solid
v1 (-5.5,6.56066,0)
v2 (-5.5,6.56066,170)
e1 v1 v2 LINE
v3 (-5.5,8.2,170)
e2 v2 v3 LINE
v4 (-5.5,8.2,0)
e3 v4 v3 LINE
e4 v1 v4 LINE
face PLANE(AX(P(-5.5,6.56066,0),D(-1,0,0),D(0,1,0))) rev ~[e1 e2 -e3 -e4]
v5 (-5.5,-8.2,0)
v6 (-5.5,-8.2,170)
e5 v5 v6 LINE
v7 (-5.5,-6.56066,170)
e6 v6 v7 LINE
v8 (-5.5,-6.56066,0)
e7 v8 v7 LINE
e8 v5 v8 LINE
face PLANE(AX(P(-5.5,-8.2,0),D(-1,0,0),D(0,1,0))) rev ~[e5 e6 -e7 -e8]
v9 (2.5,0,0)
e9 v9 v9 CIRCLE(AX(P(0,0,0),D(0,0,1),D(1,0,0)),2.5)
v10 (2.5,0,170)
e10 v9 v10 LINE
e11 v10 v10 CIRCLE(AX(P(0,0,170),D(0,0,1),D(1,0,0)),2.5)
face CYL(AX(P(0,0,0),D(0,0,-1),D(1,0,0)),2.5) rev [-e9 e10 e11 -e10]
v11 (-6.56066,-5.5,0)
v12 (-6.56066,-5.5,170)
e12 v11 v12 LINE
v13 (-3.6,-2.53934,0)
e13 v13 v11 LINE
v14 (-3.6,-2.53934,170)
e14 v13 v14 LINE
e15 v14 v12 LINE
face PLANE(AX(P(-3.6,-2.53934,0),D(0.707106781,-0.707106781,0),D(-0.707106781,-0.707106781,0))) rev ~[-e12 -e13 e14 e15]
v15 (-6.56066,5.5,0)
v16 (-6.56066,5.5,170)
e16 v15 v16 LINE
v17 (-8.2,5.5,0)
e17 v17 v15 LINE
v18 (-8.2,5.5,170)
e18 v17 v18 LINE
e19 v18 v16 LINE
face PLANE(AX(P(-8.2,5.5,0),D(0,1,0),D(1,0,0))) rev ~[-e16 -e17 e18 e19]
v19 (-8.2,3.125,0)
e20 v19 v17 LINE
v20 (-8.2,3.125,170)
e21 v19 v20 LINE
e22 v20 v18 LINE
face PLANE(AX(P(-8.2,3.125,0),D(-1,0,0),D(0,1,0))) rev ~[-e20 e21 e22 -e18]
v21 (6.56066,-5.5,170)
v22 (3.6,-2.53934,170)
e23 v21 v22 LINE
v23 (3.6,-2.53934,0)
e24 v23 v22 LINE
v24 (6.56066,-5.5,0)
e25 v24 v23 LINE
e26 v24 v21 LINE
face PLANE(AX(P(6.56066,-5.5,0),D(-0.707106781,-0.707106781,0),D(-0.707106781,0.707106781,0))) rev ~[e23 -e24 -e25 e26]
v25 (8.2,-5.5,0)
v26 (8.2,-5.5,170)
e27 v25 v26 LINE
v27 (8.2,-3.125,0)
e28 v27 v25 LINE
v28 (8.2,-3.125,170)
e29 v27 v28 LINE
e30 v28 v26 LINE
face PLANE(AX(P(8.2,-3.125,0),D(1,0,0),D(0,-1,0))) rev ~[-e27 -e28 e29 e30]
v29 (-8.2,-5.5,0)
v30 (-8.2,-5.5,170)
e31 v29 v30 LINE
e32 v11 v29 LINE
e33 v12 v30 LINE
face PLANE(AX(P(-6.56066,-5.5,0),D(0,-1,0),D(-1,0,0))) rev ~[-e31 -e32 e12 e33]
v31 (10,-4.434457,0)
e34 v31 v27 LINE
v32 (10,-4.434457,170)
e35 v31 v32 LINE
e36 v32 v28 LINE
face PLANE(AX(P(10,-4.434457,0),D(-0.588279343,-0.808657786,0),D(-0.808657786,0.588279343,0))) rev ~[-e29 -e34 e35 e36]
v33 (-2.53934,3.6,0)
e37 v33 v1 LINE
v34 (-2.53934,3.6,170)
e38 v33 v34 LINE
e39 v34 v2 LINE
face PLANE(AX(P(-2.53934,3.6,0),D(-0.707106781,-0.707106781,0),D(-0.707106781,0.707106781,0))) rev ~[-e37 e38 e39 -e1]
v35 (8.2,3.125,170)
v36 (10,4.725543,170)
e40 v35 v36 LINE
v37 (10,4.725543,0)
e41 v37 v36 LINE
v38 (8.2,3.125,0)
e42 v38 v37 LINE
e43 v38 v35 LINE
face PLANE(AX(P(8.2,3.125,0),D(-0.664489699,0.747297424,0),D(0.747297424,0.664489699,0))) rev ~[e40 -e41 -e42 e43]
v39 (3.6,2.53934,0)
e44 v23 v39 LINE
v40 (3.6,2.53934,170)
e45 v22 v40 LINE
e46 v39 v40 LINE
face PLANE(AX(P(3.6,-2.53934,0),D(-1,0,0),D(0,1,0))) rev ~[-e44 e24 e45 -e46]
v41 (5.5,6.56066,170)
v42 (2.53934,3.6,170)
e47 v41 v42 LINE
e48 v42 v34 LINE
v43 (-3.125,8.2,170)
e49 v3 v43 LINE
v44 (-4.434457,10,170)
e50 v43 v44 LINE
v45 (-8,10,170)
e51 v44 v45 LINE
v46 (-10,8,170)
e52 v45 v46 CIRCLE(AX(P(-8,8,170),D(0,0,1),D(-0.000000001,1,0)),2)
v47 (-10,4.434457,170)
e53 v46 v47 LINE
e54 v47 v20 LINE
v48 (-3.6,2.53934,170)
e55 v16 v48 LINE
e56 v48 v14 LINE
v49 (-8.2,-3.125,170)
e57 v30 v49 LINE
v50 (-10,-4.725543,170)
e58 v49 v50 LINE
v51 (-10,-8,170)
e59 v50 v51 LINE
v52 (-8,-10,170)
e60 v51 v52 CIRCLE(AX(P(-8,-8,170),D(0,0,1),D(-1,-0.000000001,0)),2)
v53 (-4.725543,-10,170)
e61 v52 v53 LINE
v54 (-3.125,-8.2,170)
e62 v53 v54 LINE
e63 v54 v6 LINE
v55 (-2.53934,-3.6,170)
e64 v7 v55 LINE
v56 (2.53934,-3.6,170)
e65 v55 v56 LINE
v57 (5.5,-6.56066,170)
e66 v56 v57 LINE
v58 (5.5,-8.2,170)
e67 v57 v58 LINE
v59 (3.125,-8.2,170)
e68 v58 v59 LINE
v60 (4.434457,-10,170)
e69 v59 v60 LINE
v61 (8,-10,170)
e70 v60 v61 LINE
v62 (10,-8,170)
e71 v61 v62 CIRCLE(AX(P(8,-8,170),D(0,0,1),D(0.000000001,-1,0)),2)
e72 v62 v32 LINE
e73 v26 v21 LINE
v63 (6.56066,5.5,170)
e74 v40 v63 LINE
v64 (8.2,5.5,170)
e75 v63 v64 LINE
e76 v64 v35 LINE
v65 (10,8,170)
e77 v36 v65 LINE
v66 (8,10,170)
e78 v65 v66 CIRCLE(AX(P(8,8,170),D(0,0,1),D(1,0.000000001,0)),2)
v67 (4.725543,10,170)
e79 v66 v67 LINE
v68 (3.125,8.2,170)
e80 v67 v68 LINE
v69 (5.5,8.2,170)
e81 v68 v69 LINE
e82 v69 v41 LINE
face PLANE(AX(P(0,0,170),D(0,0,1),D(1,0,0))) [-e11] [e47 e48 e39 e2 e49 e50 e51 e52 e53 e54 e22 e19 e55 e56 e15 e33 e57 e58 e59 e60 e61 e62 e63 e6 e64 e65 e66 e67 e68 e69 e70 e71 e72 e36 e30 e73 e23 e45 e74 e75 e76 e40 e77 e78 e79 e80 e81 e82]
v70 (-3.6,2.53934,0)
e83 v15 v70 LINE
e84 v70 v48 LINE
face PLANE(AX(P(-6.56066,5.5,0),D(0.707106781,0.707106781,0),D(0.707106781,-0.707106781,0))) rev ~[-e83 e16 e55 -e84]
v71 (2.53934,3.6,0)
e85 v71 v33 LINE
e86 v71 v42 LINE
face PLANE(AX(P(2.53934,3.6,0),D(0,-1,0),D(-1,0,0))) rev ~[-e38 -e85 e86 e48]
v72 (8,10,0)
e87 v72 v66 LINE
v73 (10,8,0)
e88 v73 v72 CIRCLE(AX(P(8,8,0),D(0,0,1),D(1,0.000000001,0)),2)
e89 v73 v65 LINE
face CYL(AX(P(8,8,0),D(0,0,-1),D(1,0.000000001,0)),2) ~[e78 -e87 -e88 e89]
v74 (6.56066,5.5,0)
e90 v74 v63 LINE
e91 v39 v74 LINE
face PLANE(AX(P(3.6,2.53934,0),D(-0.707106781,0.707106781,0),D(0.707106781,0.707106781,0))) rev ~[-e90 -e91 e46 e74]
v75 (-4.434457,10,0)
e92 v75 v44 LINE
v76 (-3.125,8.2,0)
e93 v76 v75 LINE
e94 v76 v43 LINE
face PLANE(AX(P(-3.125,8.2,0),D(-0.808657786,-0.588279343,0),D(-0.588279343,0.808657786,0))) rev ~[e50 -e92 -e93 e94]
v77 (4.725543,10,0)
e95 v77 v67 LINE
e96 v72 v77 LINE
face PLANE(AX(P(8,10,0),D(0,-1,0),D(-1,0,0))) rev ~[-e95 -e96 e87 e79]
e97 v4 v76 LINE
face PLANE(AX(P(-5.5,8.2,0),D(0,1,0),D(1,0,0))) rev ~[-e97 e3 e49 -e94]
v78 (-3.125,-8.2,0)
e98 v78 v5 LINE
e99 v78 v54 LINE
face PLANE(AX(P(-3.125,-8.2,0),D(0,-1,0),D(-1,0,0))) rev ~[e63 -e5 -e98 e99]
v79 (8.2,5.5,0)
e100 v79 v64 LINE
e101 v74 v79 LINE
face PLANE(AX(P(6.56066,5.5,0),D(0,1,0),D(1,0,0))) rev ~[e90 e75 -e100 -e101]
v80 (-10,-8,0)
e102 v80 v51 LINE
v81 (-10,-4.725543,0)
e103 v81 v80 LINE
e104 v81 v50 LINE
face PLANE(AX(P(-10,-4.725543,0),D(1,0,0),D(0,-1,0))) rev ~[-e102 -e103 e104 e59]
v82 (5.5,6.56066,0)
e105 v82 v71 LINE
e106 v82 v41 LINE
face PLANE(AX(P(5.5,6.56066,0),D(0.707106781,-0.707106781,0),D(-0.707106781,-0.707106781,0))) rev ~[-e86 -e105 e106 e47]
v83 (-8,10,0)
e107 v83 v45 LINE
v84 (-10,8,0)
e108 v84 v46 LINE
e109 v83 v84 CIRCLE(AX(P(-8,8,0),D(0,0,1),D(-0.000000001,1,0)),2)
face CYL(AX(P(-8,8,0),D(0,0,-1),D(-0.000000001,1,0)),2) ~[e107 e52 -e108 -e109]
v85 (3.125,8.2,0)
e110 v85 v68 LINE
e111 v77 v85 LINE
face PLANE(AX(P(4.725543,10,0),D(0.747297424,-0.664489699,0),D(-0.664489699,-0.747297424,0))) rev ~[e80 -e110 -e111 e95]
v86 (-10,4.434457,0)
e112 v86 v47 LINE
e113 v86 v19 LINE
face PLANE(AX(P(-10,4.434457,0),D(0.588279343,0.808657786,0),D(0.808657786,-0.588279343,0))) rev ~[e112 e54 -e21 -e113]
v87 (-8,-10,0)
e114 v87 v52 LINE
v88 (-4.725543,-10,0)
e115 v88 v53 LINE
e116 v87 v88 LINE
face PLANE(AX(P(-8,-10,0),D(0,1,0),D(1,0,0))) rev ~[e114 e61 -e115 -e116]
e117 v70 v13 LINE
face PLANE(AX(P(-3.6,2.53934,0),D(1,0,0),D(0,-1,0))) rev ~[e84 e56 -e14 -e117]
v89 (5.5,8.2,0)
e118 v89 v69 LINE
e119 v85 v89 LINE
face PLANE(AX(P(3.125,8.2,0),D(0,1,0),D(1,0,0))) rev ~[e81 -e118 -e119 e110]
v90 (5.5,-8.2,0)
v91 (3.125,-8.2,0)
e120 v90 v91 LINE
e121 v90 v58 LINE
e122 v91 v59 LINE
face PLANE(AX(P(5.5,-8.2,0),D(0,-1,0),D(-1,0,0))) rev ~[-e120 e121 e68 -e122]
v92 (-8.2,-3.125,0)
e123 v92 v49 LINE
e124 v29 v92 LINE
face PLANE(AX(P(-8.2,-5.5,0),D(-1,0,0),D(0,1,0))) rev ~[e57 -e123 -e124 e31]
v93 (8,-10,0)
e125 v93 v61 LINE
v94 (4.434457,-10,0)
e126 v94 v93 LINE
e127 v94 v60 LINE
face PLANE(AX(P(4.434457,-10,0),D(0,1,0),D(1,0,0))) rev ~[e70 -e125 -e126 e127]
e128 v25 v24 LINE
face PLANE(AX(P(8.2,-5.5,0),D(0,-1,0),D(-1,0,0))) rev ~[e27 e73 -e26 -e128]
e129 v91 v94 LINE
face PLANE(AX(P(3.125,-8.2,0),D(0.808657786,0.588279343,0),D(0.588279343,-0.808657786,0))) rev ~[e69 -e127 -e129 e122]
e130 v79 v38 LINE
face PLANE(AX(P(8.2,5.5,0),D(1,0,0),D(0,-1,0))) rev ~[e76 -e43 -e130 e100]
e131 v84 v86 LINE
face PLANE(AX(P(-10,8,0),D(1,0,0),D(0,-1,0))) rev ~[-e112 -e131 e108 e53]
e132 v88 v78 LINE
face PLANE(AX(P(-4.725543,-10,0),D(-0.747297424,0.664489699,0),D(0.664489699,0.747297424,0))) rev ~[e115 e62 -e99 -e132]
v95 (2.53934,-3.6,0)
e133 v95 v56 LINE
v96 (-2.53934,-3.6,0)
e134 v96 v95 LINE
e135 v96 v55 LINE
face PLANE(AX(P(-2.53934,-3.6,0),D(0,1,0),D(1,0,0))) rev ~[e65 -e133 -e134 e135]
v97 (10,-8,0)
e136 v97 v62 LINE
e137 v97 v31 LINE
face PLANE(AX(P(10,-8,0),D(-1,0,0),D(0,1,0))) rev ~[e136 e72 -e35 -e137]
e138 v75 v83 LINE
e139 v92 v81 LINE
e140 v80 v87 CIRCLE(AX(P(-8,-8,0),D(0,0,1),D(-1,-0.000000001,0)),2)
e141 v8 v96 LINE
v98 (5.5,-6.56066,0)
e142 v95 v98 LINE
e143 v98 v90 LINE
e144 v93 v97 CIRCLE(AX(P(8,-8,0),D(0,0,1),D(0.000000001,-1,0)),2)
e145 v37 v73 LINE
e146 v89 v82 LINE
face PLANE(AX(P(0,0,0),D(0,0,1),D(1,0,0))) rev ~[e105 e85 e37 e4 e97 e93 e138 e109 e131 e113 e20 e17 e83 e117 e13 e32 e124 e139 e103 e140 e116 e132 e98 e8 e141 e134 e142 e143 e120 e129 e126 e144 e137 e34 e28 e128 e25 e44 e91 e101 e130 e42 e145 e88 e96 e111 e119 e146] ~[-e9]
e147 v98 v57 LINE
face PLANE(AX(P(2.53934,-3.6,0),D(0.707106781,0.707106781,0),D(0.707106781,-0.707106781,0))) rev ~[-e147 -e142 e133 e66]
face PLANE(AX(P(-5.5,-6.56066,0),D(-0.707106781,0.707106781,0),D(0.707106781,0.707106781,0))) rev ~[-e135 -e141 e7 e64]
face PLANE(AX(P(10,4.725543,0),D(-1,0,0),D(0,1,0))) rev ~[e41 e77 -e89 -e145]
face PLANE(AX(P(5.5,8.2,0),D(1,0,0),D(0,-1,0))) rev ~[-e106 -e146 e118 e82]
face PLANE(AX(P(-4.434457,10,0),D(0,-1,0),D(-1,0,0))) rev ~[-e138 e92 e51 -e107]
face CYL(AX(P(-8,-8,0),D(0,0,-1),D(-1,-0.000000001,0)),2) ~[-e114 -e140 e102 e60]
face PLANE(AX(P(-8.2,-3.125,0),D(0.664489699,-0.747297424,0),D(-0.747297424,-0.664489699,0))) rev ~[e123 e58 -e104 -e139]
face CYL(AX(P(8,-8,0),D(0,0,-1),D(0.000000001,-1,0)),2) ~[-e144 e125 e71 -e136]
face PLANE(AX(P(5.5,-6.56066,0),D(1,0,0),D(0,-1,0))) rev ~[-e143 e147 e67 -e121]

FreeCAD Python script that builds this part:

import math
import FreeCAD as App
import Part
import Sketcher

doc = App.newDocument("Part")
body = doc.addObject("PartDesign::Body", "Body")

sketch1 = doc.addObject("Sketcher::SketchObject", "Sketch")
body.addObject(sketch1)
sketch1.AttachmentSupport = (doc.XY_Plane, [""])
sketch1.MapMode = "FlatFace"
sketch1.addGeometry([
    Part.LineSegment(App.Vector(-4.725543, -10, 0), App.Vector(-3.125, -8.2, 0)),
    Part.LineSegment(App.Vector(-3.125, -8.2, 0), App.Vector(-5.5, -8.2, 0)),
    Part.LineSegment(App.Vector(-5.5, -8.2, 0), App.Vector(-5.5, -6.56066, 0)),
    Part.LineSegment(App.Vector(-5.5, -6.56066, 0), App.Vector(-2.53934, -3.6, 0)),
    Part.LineSegment(App.Vector(-2.53934, -3.6, 0), App.Vector(2.53934, -3.6, 0)),
    Part.LineSegment(App.Vector(2.53934, -3.6, 0), App.Vector(5.5, -6.56066, 0)),
    Part.LineSegment(App.Vector(5.5, -6.56066, 0), App.Vector(5.5, -8.2, 0)),
    Part.LineSegment(App.Vector(5.5, -8.2, 0), App.Vector(3.125, -8.2, 0)),
    Part.LineSegment(App.Vector(3.125, -8.2, 0), App.Vector(4.434457, -10, 0)),
    Part.LineSegment(App.Vector(4.434457, -10, 0), App.Vector(8, -10, 0)),
    Part.ArcOfCircle(Part.Circle(App.Vector(8, -8, 0), App.Vector(0, 0, 1), 2), math.radians(-90), math.radians(0)),
    Part.LineSegment(App.Vector(10, -8, 0), App.Vector(10, -4.434457, 0)),
    Part.LineSegment(App.Vector(10, -4.434457, 0), App.Vector(8.2, -3.125, 0)),
    Part.LineSegment(App.Vector(8.2, -3.125, 0), App.Vector(8.2, -5.5, 0)),
    Part.LineSegment(App.Vector(8.2, -5.5, 0), App.Vector(6.56066, -5.5, 0)),
    Part.LineSegment(App.Vector(6.56066, -5.5, 0), App.Vector(3.6, -2.53934, 0)),
    Part.LineSegment(App.Vector(3.6, -2.53934, 0), App.Vector(3.6, 2.53934, 0)),
    Part.LineSegment(App.Vector(3.6, 2.53934, 0), App.Vector(6.56066, 5.5, 0)),
    Part.LineSegment(App.Vector(6.56066, 5.5, 0), App.Vector(8.2, 5.5, 0)),
    Part.LineSegment(App.Vector(8.2, 5.5, 0), App.Vector(8.2, 3.125, 0)),
    Part.LineSegment(App.Vector(8.2, 3.125, 0), App.Vector(10, 4.725543, 0)),
    Part.LineSegment(App.Vector(10, 4.725543, 0), App.Vector(10, 8, 0)),
    Part.ArcOfCircle(Part.Circle(App.Vector(8, 8, 0), App.Vector(0, 0, 1), 2), math.radians(0), math.radians(90)),
    Part.LineSegment(App.Vector(8, 10, 0), App.Vector(4.725543, 10, 0)),
    Part.LineSegment(App.Vector(4.725543, 10, 0), App.Vector(3.125, 8.2, 0)),
    Part.LineSegment(App.Vector(3.125, 8.2, 0), App.Vector(5.5, 8.2, 0)),
    Part.LineSegment(App.Vector(5.5, 8.2, 0), App.Vector(5.5, 6.56066, 0)),
    Part.LineSegment(App.Vector(5.5, 6.56066, 0), App.Vector(2.53934, 3.6, 0)),
    Part.LineSegment(App.Vector(2.53934, 3.6, 0), App.Vector(-2.53934, 3.6, 0)),
    Part.LineSegment(App.Vector(-2.53934, 3.6, 0), App.Vector(-5.5, 6.56066, 0)),
    Part.LineSegment(App.Vector(-5.5, 6.56066, 0), App.Vector(-5.5, 8.2, 0)),
    Part.LineSegment(App.Vector(-5.5, 8.2, 0), App.Vector(-3.125, 8.2, 0)),
    Part.LineSegment(App.Vector(-3.125, 8.2, 0), App.Vector(-4.434457, 10, 0)),
    Part.LineSegment(App.Vector(-4.434457, 10, 0), App.Vector(-8, 10, 0)),
    Part.ArcOfCircle(Part.Circle(App.Vector(-8, 8, 0), App.Vector(0, 0, 1), 2), math.radians(90), math.radians(180)),
    Part.LineSegment(App.Vector(-10, 8, 0), App.Vector(-10, 4.434457, 0)),
    Part.LineSegment(App.Vector(-10, 4.434457, 0), App.Vector(-8.2, 3.125, 0)),
    Part.LineSegment(App.Vector(-8.2, 3.125, 0), App.Vector(-8.2, 5.5, 0)),
    Part.LineSegment(App.Vector(-8.2, 5.5, 0), App.Vector(-6.56066, 5.5, 0)),
    Part.LineSegment(App.Vector(-6.56066, 5.5, 0), App.Vector(-3.6, 2.53934, 0)),
    Part.LineSegment(App.Vector(-3.6, 2.53934, 0), App.Vector(-3.6, -2.53934, 0)),
    Part.LineSegment(App.Vector(-3.6, -2.53934, 0), App.Vector(-6.56066, -5.5, 0)),
    Part.LineSegment(App.Vector(-6.56066, -5.5, 0), App.Vector(-8.2, -5.5, 0)),
    Part.LineSegment(App.Vector(-8.2, -5.5, 0), App.Vector(-8.2, -3.125, 0)),
    Part.LineSegment(App.Vector(-8.2, -3.125, 0), App.Vector(-10, -4.725543, 0)),
    Part.LineSegment(App.Vector(-10, -4.725543, 0), App.Vector(-10, -8, 0)),
    Part.ArcOfCircle(Part.Circle(App.Vector(-8, -8, 0), App.Vector(0, 0, 1), 2), math.radians(-180), math.radians(-90)),
    Part.LineSegment(App.Vector(-8, -10, 0), App.Vector(-4.725543, -10, 0)),
    Part.Circle(App.Vector(0, 0, 0), App.Vector(0, 0, 1), 2.5),
], False)
sketch1.addConstraint([
    Sketcher.Constraint("Coincident", 0, 2, 1, 1),
    Sketcher.Constraint("Coincident", 1, 2, 2, 1),
    Sketcher.Constraint("Coincident", 2, 2, 3, 1),
    Sketcher.Constraint("Coincident", 3, 2, 4, 1),
    Sketcher.Constraint("Coincident", 4, 2, 5, 1),
    Sketcher.Constraint("Coincident", 5, 2, 6, 1),
    Sketcher.Constraint("Coincident", 6, 2, 7, 1),
    Sketcher.Constraint("Coincident", 7, 2, 8, 1),
    Sketcher.Constraint("Coincident", 8, 2, 9, 1),
    Sketcher.Constraint("Tangent", 9, 2, 10, 1),
    Sketcher.Constraint("Tangent", 10, 2, 11, 1),
    Sketcher.Constraint("Coincident", 11, 2, 12, 1),
    Sketcher.Constraint("Coincident", 12, 2, 13, 1),
    Sketcher.Constraint("Coincident", 13, 2, 14, 1),
    Sketcher.Constraint("Coincident", 14, 2, 15, 1),
    Sketcher.Constraint("Coincident", 15, 2, 16, 1),
    Sketcher.Constraint("Coincident", 16, 2, 17, 1),
    Sketcher.Constraint("Coincident", 17, 2, 18, 1),
    Sketcher.Constraint("Coincident", 18, 2, 19, 1),
    Sketcher.Constraint("Coincident", 19, 2, 20, 1),
    Sketcher.Constraint("Coincident", 20, 2, 21, 1),
    Sketcher.Constraint("Tangent", 21, 2, 22, 1),
    Sketcher.Constraint("Tangent", 22, 2, 23, 1),
    Sketcher.Constraint("Coincident", 23, 2, 24, 1),
    Sketcher.Constraint("Coincident", 24, 2, 25, 1),
    Sketcher.Constraint("Coincident", 25, 2, 26, 1),
    Sketcher.Constraint("Coincident", 26, 2, 27, 1),
    Sketcher.Constraint("Coincident", 27, 2, 28, 1),
    Sketcher.Constraint("Coincident", 28, 2, 29, 1),
    Sketcher.Constraint("Coincident", 29, 2, 30, 1),
    Sketcher.Constraint("Coincident", 30, 2, 31, 1),
    Sketcher.Constraint("Coincident", 31, 2, 32, 1),
    Sketcher.Constraint("Coincident", 32, 2, 33, 1),
    Sketcher.Constraint("Tangent", 33, 2, 34, 1),
    Sketcher.Constraint("Tangent", 34, 2, 35, 1),
    Sketcher.Constraint("Coincident", 35, 2, 36, 1),
    Sketcher.Constraint("Coincident", 36, 2, 37, 1),
    Sketcher.Constraint("Coincident", 37, 2, 38, 1),
    Sketcher.Constraint("Coincident", 38, 2, 39, 1),
    Sketcher.Constraint("Coincident", 39, 2, 40, 1),
    Sketcher.Constraint("Coincident", 40, 2, 41, 1),
    Sketcher.Constraint("Coincident", 41, 2, 42, 1),
    Sketcher.Constraint("Coincident", 42, 2, 43, 1),
    Sketcher.Constraint("Coincident", 43, 2, 44, 1),
    Sketcher.Constraint("Coincident", 44, 2, 45, 1),
    Sketcher.Constraint("Tangent", 45, 2, 46, 1),
    Sketcher.Constraint("Tangent", 46, 2, 47, 1),
    Sketcher.Constraint("Coincident", 47, 2, 0, 1),
    Sketcher.Constraint("Horizontal", 1),
    Sketcher.Constraint("Vertical", 2),
    Sketcher.Constraint("Horizontal", 4),
    Sketcher.Constraint("Vertical", 6),
    Sketcher.Constraint("Horizontal", 7),
    Sketcher.Constraint("Horizontal", 9),
    Sketcher.Constraint("Vertical", 11),
    Sketcher.Constraint("Vertical", 13),
    Sketcher.Constraint("Horizontal", 14),
    Sketcher.Constraint("Vertical", 16),
    Sketcher.Constraint("Horizontal", 18),
    Sketcher.Constraint("Vertical", 19),
    Sketcher.Constraint("Vertical", 21),
    Sketcher.Constraint("Horizontal", 23),
    Sketcher.Constraint("Horizontal", 25),
    Sketcher.Constraint("Vertical", 26),
    Sketcher.Constraint("Horizontal", 28),
    Sketcher.Constraint("Vertical", 30),
    Sketcher.Constraint("Horizontal", 31),
    Sketcher.Constraint("Horizontal", 33),
    Sketcher.Constraint("Vertical", 35),
    Sketcher.Constraint("Vertical", 37),
    Sketcher.Constraint("Horizontal", 38),
    Sketcher.Constraint("Vertical", 40),
    Sketcher.Constraint("Horizontal", 42),
    Sketcher.Constraint("Vertical", 43),
    Sketcher.Constraint("Vertical", 45),
    Sketcher.Constraint("Horizontal", 47),
    Sketcher.Constraint("Coincident", 48, 3, -1, 1),
    Sketcher.Constraint("Equal", 10, 22),
    Sketcher.Constraint("Equal", 22, 34),
    Sketcher.Constraint("Equal", 34, 46),
    Sketcher.Constraint("Symmetric", 10, 3, 34, 3, -1, 1),
    Sketcher.Constraint("Symmetric", 22, 3, 46, 3, -1, 1),
    Sketcher.Constraint("Symmetric", 0, 2, 24, 2, -1, 1),
    Sketcher.Constraint("Symmetric", 2, 2, 26, 2, -1, 1),
    Sketcher.Constraint("Symmetric", 3, 2, 27, 2, -1, 1),
    Sketcher.Constraint("Symmetric", 5, 2, 29, 2, -1, 1),
    Sketcher.Constraint("Symmetric", 7, 2, 31, 2, -1, 1),
    Sketcher.Constraint("Symmetric", 12, 2, 36, 2, -1, 1),
    Sketcher.Constraint("Symmetric", 14, 2, 38, 2, -1, 1),
    Sketcher.Constraint("Symmetric", 15, 2, 39, 2, -1, 1),
    Sketcher.Constraint("Symmetric", 17, 2, 41, 2, -1, 1),
    Sketcher.Constraint("Symmetric", 19, 2, 43, 2, -1, 1),
    Sketcher.Constraint("Symmetric", 22, 3, 34, 3, -2),
    Sketcher.Constraint("Symmetric", 2, 2, 5, 2, -2),
    Sketcher.Constraint("Symmetric", 0, 2, 7, 2, -2),
    Sketcher.Constraint("Symmetric", 19, 2, 36, 2, -2),
    Sketcher.Constraint("Symmetric", 17, 2, 38, 2, -2),
    Sketcher.Constraint("Perpendicular", 3, 5),
    Sketcher.Constraint("Parallel", 5, 15),
    Sketcher.Constraint("Perpendicular", 15, 17),
    Sketcher.Constraint("Parallel", 0, 24),
    Sketcher.Constraint("Perpendicular", 27, 29),
    Sketcher.Constraint("Parallel", 8, 32),
    Sketcher.Constraint("Parallel", 12, 36),
    Sketcher.Constraint("Perpendicular", 39, 41),
    Sketcher.Constraint("Parallel", 20, 44),
    Sketcher.Constraint("Horizontal", 16, 2, 39, 2),
    Sketcher.Constraint("Equal", 42, 2),
    Sketcher.Constraint("Equal", 33, 11),
    Sketcher.Constraint("Equal", 31, 13),
    Sketcher.Constraint("Equal", 28, 16),
    Sketcher.Constraint("Equal", 47, 21),
    Sketcher.Constraint("Equal", 8, 12),
    Sketcher.Constraint("Equal", 5, 15),
    Sketcher.Constraint("Equal", 0, 20),
    Sketcher.Constraint("Diameter", 48, 5.0),
    Sketcher.Constraint("Radius", 10, 2.0),
    Sketcher.Constraint("DistanceX", -1, 1, 10, 3, 8.0),
    Sketcher.Constraint("DistanceY", 0, 2, -1, 1, 8.2),
    Sketcher.Constraint("DistanceX", 1, 2, -1, 1, 5.5),
    Sketcher.Constraint("DistanceY", 3, 2, -1, 1, 3.6),
    Sketcher.Constraint("DistanceX", 1, 2, 1, 1, 2.375),
    Sketcher.Constraint("DistanceX", 4, 1, 4, 2, 5.07868),
    Sketcher.Constraint("Distance", 0, 2.40868),
    Sketcher.Constraint("Distance", 8, 2.225911),
])
pad1 = doc.addObject("PartDesign::Pad", "Pad")
body.addObject(pad1)
pad1.Profile = sketch1
pad1.Length = 170

doc.recompute()
